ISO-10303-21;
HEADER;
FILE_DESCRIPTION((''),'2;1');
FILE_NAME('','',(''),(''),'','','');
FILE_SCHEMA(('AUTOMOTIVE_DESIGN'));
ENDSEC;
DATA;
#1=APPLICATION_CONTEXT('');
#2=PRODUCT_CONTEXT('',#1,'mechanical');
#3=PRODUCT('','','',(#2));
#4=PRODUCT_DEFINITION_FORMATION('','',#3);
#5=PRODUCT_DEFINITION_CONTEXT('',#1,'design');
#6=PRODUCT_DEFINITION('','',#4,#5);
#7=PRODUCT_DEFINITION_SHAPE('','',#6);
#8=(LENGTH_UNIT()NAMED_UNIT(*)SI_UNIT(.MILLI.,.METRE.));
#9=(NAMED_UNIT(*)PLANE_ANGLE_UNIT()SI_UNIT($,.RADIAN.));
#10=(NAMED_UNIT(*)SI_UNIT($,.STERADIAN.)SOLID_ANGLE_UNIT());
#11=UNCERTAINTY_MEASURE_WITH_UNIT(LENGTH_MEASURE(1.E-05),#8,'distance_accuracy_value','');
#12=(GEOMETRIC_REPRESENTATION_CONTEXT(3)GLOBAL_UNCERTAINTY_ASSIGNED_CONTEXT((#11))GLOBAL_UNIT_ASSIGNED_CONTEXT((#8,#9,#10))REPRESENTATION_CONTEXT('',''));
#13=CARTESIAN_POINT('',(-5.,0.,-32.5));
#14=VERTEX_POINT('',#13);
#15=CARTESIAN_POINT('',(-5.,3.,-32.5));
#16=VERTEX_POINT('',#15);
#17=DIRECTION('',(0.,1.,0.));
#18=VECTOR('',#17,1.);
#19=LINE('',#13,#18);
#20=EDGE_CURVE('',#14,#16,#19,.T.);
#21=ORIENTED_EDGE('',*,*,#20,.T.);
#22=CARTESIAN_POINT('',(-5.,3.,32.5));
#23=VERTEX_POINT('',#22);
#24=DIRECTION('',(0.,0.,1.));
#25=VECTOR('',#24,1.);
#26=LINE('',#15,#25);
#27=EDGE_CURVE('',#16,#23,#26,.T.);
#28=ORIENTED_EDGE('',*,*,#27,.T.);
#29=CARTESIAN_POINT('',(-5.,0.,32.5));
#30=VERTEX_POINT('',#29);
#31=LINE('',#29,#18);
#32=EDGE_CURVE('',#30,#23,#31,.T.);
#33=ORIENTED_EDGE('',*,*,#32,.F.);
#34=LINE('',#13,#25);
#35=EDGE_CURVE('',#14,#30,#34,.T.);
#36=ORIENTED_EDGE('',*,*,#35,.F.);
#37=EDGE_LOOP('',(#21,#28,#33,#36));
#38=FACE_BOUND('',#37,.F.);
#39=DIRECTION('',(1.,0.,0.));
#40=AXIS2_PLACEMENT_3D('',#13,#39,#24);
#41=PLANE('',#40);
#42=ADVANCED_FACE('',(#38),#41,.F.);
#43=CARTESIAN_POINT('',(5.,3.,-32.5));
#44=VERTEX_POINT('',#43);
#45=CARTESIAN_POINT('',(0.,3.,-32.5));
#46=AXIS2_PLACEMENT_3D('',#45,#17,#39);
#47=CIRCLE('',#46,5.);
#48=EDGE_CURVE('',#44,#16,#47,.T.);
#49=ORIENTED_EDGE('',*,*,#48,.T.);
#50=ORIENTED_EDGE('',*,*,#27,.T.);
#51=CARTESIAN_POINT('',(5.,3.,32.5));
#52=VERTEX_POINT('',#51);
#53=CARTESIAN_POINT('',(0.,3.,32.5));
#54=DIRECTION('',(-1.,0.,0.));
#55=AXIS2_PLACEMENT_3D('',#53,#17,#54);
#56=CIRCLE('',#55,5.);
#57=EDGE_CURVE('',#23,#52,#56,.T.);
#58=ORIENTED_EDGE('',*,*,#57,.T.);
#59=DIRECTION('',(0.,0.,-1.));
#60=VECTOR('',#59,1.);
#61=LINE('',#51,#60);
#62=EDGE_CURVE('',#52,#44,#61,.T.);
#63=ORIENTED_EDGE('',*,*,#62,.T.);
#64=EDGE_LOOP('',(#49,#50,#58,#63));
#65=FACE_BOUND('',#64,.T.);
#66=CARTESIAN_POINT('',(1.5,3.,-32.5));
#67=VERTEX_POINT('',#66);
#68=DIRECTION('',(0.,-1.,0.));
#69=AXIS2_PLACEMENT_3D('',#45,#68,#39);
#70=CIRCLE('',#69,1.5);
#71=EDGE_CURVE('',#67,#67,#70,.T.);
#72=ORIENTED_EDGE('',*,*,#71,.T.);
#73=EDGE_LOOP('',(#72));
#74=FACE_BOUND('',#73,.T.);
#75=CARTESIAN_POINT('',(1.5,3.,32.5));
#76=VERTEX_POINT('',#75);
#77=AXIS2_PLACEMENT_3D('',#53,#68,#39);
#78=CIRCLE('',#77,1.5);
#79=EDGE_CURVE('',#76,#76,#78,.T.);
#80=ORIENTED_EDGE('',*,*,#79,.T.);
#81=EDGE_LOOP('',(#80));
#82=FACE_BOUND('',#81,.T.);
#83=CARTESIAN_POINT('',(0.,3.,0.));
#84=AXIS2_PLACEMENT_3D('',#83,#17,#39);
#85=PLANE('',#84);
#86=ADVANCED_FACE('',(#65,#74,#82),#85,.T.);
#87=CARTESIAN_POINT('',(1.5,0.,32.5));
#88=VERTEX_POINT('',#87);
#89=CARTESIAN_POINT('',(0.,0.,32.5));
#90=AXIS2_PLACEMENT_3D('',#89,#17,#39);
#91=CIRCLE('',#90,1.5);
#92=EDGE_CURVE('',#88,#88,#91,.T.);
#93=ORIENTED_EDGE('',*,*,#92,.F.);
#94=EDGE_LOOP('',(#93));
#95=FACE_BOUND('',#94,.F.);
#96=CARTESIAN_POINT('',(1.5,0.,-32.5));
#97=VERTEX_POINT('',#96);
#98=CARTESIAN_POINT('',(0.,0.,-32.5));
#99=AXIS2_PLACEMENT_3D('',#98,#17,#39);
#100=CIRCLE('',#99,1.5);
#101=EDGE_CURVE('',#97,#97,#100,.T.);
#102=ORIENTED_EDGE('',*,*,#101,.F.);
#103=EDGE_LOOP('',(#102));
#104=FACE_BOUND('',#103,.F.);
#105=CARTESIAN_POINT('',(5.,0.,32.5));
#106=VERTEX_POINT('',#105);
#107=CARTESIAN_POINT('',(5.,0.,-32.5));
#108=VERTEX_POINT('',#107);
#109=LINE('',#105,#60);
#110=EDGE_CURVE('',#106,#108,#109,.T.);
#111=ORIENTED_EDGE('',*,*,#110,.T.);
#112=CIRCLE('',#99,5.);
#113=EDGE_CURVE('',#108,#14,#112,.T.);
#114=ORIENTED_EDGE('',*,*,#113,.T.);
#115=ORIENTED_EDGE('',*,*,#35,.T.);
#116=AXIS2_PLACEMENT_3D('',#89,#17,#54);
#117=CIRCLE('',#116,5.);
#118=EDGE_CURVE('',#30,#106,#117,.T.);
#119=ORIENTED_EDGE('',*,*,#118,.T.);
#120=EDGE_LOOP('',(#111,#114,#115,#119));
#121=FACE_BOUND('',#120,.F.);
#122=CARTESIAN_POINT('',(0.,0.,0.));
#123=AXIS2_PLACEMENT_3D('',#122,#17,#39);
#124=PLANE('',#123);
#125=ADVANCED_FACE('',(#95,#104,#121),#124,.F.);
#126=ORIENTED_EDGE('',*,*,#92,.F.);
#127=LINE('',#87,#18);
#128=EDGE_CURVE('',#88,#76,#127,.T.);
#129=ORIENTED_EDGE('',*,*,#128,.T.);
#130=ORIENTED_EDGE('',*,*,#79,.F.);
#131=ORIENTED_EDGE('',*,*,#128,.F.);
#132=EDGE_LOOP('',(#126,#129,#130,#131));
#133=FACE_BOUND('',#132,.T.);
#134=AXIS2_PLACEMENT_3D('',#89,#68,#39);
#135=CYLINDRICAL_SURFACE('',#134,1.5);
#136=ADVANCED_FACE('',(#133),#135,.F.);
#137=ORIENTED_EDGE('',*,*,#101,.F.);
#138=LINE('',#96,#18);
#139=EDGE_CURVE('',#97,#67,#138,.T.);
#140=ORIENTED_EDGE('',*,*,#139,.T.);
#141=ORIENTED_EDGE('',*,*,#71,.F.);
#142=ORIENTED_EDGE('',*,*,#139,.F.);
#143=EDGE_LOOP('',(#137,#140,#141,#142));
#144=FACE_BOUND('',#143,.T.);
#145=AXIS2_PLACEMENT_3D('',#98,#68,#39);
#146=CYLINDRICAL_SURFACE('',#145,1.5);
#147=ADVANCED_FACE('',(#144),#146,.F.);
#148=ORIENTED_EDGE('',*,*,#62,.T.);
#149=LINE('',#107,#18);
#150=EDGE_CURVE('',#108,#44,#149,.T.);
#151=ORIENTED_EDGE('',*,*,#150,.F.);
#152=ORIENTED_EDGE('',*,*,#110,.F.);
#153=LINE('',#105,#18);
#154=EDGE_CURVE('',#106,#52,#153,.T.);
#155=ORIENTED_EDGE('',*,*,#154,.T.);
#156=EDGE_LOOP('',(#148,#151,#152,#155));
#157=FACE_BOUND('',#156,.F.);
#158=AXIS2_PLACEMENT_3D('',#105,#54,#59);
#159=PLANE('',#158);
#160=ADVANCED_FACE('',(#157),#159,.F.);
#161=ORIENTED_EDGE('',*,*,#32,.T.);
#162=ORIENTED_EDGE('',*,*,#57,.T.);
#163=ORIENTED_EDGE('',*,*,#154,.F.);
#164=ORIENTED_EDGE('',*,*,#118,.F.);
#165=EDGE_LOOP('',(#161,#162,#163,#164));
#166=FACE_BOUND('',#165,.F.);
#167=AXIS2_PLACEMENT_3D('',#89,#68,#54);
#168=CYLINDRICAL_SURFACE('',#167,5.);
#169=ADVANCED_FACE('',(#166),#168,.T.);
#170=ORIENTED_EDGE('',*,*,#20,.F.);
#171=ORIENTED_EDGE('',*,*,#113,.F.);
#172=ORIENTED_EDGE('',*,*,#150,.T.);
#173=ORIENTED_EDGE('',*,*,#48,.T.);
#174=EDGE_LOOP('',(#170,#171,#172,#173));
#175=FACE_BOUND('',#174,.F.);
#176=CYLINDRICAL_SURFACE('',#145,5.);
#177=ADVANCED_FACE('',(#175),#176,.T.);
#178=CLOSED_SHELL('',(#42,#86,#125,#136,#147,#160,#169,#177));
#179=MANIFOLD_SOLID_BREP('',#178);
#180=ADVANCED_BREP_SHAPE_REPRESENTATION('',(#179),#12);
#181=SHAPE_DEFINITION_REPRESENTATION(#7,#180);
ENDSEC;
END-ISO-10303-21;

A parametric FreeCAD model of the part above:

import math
import FreeCAD as App
import Part
import Sketcher

doc = App.newDocument("Part")
body = doc.addObject("PartDesign::Body", "Body")

sketch1 = body.newObject("Sketcher::SketchObject", "Sketch")
sketch1.AttachmentSupport = (doc.getObject("XZ_Plane"), [""])
sketch1.MapMode = "FlatFace"
sketch1.addGeometry(Part.LineSegment(App.Vector(5, 32.5, 0), App.Vector(5, -32.5, 0)), False)
sketch1.addGeometry(Part.ArcOfCircle(Part.Circle(App.Vector(0, -32.5, 0), App.Vector(0, 0, 1), 5), math.radians(180), math.radians(360)), False)
sketch1.addGeometry(Part.LineSegment(App.Vector(-5, -32.5, 0), App.Vector(-5, 32.5, 0)), False)
sketch1.addGeometry(Part.ArcOfCircle(Part.Circle(App.Vector(0, 32.5, 0), App.Vector(0, 0, 1), 5), math.radians(0), math.radians(180)), False)
sketch1.addGeometry(Part.Circle(App.Vector(0, 32.5, 0), App.Vector(0, 0, 1), 1.5), False)
sketch1.addGeometry(Part.Circle(App.Vector(0, -32.5, 0), App.Vector(0, 0, 1), 1.5), False)
sketch1.addConstraint(Sketcher.Constraint("Tangent", 0, 2, 1, 2))
sketch1.addConstraint(Sketcher.Constraint("Tangent", 1, 1, 2, 1))
sketch1.addConstraint(Sketcher.Constraint("Tangent", 2, 2, 3, 2))
sketch1.addConstraint(Sketcher.Constraint("Tangent", 3, 1, 0, 1))
sketch1.addConstraint(Sketcher.Constraint("Vertical", 0))
sketch1.addConstraint(Sketcher.Constraint("Vertical", 2))
sketch1.addConstraint(Sketcher.Constraint("Coincident", 4, 3, 3, 3))
sketch1.addConstraint(Sketcher.Constraint("Coincident", 5, 3, 1, 3))
sketch1.addConstraint(Sketcher.Constraint("Equal", 4, 5))
sketch1.addConstraint(Sketcher.Constraint("Symmetric", 1, 3, 3, 3, -1, 1))
sketch1.addConstraint(Sketcher.Constraint("Diameter", 4, 3.0))
sketch1.addConstraint(Sketcher.Constraint("Radius", 1, 5.0))
sketch1.addConstraint(Sketcher.Constraint("DistanceY", 0, 2, 0, 1, 65.0))
pad1 = body.newObject("PartDesign::Pad", "Pad")
pad1.Profile = sketch1
pad1.Length = 3
pad1.Reversed = True

doc.recompute()
